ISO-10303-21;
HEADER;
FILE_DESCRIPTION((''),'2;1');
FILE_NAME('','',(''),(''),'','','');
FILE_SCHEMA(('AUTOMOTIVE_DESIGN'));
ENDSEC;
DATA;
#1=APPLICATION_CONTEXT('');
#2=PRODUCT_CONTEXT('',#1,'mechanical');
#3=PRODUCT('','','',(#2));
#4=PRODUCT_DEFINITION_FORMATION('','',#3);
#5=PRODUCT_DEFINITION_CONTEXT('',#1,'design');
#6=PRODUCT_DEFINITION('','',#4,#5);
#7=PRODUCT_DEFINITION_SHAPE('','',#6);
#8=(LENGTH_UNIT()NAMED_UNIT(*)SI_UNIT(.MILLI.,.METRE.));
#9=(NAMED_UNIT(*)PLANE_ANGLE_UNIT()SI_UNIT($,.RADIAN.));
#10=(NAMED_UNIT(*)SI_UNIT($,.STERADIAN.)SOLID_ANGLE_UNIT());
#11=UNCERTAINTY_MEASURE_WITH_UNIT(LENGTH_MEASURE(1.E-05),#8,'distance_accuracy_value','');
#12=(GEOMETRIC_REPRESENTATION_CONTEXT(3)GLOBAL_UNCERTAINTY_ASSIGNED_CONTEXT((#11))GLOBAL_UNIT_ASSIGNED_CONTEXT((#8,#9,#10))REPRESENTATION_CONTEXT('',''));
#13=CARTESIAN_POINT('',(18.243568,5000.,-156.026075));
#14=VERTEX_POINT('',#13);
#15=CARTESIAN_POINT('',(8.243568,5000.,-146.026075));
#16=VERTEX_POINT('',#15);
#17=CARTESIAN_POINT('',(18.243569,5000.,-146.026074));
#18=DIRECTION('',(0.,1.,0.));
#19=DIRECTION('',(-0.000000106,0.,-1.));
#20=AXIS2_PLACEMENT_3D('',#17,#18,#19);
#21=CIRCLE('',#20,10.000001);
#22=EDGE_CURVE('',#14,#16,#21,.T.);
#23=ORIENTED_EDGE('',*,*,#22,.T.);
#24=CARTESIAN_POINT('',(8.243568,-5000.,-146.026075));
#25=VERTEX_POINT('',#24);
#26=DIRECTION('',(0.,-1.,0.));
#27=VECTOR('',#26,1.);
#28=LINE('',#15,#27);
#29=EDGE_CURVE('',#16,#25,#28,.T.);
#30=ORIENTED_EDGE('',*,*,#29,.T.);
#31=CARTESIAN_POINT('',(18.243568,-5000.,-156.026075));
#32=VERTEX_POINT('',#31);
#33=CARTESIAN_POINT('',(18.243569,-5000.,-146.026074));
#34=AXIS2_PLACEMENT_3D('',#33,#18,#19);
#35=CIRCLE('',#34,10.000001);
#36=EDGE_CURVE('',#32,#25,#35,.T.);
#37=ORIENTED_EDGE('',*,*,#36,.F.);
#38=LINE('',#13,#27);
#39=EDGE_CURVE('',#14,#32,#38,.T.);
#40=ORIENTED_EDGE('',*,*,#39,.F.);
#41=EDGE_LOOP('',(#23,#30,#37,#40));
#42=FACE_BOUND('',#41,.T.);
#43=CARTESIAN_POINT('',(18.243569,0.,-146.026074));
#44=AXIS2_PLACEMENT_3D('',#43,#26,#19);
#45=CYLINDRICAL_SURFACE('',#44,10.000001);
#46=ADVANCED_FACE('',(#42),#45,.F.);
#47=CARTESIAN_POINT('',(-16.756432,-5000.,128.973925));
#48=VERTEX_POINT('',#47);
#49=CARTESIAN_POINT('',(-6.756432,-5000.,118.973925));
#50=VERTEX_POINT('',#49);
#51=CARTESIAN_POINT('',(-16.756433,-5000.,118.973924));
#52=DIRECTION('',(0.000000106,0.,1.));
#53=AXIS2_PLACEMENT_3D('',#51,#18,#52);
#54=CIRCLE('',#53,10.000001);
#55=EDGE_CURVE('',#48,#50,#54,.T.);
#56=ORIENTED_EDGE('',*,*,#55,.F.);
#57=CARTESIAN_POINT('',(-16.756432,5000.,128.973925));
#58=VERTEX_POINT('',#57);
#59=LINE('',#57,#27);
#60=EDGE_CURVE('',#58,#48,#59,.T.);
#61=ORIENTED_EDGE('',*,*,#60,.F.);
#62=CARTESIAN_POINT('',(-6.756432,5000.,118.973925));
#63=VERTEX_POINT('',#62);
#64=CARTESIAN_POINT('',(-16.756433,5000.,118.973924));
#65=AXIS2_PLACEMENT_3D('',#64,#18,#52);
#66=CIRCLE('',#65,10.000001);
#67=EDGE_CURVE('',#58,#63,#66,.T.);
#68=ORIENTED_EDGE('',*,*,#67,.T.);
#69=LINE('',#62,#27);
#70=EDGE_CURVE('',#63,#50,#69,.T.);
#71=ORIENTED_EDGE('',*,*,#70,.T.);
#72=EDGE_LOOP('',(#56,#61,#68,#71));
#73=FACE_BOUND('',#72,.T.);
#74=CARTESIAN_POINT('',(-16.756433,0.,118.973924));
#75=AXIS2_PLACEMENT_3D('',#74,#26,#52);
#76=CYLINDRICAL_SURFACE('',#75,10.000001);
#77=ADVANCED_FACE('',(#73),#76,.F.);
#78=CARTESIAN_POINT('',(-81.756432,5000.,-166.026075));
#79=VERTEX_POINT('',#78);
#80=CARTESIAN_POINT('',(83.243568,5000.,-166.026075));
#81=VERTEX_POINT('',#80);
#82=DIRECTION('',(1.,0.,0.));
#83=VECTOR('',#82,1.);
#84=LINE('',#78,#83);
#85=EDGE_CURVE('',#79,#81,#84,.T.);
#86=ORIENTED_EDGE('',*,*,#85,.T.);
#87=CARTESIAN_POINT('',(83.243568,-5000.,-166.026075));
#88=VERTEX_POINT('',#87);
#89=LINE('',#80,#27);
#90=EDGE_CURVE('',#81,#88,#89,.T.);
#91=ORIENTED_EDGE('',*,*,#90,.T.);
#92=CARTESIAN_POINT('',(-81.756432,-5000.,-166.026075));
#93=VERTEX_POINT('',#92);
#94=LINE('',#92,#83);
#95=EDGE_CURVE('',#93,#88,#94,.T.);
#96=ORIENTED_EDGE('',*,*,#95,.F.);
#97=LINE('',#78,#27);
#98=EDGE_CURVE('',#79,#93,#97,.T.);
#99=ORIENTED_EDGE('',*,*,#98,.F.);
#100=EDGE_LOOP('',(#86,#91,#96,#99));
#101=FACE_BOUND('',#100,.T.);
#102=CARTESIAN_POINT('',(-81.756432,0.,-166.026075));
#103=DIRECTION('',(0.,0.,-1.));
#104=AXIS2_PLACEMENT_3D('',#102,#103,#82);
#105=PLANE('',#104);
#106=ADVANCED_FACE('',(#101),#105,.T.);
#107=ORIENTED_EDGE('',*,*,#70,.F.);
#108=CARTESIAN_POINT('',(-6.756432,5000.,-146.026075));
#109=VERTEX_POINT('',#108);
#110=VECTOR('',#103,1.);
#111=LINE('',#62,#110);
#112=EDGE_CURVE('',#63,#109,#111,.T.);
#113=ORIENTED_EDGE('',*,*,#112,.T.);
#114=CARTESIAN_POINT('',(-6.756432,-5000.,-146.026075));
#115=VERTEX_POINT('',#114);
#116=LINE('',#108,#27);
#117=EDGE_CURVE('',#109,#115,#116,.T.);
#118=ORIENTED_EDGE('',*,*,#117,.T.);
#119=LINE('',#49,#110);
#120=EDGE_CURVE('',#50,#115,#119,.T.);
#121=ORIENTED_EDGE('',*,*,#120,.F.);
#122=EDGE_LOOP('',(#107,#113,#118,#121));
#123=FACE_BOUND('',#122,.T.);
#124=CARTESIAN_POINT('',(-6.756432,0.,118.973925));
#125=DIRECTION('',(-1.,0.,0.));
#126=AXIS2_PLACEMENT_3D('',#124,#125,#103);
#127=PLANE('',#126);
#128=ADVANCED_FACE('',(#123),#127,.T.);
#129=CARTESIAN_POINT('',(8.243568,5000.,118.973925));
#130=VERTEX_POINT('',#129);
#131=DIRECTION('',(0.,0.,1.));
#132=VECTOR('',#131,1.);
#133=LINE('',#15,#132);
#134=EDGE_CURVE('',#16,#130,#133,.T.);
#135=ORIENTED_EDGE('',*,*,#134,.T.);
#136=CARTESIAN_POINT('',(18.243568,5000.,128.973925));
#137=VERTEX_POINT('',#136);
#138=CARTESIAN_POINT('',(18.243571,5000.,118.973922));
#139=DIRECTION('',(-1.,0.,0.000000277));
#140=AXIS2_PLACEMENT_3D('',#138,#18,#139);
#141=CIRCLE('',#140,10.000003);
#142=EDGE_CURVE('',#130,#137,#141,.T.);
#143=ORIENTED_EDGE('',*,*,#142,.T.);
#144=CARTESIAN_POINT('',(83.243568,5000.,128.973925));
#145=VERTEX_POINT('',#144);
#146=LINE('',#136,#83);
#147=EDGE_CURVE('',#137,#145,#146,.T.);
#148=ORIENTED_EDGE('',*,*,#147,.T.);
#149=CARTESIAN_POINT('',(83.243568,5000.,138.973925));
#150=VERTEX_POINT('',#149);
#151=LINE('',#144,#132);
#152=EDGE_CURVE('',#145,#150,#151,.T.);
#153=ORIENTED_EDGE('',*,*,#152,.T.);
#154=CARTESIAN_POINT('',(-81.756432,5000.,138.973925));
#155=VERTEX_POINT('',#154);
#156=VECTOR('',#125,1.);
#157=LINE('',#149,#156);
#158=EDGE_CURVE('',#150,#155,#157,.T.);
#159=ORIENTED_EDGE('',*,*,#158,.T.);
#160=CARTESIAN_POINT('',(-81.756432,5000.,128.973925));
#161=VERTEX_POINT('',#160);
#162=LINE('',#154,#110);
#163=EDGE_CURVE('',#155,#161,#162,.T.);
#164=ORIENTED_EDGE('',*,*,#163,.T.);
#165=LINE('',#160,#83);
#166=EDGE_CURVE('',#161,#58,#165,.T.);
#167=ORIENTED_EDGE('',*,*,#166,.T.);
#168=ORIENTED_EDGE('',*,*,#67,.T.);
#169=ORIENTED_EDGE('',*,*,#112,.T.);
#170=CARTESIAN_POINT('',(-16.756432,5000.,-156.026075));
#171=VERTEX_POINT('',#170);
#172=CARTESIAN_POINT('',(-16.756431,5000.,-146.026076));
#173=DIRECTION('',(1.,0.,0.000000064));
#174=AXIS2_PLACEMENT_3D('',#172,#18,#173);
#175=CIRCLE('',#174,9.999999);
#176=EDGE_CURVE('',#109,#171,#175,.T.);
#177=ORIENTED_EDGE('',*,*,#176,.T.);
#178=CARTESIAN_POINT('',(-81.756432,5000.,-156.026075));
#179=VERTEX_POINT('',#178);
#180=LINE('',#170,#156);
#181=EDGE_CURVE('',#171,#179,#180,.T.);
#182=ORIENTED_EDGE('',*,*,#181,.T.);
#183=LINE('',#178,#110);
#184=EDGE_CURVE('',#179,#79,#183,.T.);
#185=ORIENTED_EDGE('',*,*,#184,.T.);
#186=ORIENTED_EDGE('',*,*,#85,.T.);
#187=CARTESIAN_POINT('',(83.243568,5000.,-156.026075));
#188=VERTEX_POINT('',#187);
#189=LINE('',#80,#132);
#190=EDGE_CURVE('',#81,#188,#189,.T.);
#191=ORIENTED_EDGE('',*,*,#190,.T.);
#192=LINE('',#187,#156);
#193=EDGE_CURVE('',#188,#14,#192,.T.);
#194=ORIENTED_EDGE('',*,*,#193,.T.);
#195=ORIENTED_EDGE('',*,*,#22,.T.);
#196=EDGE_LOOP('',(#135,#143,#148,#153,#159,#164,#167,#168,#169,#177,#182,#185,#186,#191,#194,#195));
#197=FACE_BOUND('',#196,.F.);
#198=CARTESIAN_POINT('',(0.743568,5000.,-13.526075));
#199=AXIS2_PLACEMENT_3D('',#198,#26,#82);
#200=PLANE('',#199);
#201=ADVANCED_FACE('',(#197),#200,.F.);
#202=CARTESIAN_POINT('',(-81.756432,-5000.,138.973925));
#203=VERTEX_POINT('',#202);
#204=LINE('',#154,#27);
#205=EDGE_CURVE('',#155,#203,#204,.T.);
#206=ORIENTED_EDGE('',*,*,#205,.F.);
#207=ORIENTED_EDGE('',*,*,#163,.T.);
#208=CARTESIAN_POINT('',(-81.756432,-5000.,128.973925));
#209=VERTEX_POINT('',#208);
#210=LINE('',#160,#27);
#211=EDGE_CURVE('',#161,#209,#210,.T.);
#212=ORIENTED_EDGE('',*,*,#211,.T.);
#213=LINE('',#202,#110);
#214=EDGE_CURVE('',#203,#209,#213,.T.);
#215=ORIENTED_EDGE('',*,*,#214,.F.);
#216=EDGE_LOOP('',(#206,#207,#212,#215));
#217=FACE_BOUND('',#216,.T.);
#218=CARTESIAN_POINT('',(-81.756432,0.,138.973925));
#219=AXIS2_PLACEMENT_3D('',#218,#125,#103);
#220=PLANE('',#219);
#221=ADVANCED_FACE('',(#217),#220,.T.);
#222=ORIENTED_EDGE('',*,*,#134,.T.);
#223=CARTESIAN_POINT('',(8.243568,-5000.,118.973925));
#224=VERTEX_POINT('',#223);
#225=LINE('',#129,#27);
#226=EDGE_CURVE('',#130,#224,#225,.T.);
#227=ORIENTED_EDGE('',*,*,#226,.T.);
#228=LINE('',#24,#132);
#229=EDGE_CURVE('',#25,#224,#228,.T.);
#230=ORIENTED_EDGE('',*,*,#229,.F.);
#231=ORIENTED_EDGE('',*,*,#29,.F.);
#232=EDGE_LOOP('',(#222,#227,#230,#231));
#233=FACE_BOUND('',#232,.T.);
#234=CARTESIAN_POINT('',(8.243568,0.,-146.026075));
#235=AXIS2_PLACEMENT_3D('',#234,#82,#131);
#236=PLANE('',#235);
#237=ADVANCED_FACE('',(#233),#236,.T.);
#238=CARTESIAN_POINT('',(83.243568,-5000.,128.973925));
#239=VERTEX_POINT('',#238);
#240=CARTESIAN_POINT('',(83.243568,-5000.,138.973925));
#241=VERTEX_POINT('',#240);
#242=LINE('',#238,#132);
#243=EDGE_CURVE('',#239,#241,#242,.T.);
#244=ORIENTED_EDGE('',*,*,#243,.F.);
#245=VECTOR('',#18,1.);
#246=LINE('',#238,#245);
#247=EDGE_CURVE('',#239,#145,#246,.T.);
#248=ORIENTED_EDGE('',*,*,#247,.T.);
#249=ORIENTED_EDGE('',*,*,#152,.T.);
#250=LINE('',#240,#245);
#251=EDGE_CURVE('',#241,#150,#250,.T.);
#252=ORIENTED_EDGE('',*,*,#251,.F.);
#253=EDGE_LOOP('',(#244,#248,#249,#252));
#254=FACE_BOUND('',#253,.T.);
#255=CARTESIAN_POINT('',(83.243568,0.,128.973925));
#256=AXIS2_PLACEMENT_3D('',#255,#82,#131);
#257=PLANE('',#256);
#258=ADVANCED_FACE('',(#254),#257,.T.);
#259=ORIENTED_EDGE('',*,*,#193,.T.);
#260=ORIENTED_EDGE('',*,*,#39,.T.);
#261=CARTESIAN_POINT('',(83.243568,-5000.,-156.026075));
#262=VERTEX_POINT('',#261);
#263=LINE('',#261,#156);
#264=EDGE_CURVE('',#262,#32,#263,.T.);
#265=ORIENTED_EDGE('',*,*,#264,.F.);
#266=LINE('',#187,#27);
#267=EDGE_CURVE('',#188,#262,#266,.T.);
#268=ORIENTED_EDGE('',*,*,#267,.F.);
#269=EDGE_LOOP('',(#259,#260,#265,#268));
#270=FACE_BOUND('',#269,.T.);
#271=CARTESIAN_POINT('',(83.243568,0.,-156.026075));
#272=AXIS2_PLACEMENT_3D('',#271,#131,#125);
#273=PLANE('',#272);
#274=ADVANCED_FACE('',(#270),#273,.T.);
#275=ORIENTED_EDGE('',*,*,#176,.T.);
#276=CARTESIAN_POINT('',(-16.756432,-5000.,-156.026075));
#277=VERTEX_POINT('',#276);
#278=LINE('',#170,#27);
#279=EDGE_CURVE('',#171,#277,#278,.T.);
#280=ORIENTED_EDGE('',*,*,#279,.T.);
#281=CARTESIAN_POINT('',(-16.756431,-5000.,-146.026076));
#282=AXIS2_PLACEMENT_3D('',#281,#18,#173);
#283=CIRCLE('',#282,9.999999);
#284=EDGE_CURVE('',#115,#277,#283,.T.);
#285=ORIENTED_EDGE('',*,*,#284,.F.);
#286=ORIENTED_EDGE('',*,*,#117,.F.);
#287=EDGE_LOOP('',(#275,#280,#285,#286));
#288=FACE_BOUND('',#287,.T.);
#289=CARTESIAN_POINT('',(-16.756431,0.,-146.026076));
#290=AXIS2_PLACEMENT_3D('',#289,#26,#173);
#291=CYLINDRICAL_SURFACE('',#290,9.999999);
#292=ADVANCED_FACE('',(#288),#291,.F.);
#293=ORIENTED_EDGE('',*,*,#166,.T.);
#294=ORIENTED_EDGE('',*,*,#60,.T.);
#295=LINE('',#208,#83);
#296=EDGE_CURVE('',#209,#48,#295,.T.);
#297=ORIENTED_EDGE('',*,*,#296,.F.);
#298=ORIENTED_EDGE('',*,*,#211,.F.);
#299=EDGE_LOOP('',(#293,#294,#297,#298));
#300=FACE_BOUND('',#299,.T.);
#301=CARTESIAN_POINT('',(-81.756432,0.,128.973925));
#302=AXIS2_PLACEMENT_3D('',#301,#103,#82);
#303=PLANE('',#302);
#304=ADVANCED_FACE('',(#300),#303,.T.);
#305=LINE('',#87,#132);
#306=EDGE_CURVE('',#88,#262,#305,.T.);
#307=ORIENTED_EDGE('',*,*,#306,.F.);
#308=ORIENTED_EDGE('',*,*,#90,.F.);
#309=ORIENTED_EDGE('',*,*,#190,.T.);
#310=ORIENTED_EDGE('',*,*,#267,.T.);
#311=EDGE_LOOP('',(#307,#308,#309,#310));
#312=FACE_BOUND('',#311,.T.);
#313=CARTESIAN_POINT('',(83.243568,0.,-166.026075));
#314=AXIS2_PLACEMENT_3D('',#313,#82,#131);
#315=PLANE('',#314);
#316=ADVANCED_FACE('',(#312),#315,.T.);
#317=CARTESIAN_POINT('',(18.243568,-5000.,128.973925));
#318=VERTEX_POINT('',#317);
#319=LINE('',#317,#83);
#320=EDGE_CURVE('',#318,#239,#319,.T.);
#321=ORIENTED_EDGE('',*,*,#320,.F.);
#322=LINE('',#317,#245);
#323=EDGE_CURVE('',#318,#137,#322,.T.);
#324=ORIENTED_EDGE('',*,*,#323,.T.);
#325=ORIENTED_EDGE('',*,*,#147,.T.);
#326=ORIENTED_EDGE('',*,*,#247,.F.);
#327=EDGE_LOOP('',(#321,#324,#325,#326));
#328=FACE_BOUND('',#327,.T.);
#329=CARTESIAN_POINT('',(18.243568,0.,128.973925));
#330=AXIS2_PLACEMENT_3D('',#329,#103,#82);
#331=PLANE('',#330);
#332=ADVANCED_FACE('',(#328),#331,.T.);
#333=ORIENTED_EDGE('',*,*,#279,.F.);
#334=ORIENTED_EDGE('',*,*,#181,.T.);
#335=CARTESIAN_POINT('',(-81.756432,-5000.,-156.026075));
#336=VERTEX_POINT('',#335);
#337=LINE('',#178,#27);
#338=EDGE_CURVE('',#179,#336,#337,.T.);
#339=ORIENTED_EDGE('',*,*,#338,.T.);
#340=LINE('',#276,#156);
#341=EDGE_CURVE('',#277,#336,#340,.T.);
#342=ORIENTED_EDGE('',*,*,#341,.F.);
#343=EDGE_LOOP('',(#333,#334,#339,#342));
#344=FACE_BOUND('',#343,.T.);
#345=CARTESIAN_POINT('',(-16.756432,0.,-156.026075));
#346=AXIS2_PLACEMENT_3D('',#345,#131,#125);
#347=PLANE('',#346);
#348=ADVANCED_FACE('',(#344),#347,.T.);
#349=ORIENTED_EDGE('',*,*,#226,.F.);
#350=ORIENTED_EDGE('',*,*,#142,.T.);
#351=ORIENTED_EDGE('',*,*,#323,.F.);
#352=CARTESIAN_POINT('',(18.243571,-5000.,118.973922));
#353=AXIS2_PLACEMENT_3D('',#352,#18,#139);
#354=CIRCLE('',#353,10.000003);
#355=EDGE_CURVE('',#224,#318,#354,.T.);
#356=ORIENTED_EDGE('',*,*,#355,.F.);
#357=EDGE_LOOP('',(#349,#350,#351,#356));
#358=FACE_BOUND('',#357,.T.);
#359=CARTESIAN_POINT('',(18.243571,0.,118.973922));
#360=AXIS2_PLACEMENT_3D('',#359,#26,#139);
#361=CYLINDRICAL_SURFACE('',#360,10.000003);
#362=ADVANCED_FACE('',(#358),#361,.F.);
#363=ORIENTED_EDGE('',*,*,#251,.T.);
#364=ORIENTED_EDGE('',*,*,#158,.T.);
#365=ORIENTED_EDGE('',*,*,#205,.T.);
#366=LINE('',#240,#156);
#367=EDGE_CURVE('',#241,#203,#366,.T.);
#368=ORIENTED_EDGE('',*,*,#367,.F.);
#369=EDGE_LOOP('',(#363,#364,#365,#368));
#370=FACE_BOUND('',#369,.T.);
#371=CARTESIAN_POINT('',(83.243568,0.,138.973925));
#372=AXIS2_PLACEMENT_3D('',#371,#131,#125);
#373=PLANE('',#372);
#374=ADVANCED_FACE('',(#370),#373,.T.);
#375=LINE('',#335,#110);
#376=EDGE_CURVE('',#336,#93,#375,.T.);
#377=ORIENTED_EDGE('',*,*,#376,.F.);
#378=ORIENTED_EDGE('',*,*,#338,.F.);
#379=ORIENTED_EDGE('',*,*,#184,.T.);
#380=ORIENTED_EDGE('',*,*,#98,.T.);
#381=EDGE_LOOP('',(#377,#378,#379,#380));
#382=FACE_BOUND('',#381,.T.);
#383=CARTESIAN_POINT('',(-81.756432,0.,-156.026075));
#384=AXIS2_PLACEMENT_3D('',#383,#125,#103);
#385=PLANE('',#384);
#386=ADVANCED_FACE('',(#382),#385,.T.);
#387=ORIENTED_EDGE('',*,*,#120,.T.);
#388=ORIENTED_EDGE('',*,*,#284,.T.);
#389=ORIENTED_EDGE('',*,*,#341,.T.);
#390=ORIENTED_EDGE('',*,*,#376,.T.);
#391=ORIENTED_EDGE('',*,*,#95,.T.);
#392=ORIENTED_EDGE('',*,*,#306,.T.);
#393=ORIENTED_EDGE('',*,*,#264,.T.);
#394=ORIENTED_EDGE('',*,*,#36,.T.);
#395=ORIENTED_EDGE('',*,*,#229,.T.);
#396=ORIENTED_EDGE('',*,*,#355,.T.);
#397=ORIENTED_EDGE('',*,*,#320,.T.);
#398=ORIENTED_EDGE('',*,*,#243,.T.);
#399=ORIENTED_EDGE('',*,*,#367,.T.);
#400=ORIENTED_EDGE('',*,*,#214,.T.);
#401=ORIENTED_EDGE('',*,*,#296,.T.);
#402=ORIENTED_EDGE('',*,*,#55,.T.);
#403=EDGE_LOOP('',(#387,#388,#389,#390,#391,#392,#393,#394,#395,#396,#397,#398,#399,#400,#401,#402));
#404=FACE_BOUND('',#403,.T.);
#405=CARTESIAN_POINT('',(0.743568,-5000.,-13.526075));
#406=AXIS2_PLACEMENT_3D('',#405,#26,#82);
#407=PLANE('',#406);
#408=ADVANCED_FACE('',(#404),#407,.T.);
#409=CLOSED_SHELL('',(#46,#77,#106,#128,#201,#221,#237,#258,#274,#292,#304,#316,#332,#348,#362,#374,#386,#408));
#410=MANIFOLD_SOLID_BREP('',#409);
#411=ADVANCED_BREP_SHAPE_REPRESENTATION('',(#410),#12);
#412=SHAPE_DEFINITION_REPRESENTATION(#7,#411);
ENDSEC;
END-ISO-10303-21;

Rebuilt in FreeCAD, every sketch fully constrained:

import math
import FreeCAD as App
import Part
import Sketcher
Q = App.Units.Quantity

doc = App.newDocument("Part")
body = doc.addObject("PartDesign::Body", "Body")

# Sketch on XZ plane
sketch1 = body.newObject("Sketcher::SketchObject", "Sketch")
sketch1.AttachmentSupport = (doc.getObject("XZ_Plane"), [""])
sketch1.MapMode = "FlatFace"
sketch1.addGeometry([
    Part.LineSegment(App.Vector(83.243568, 138.973925, 0), App.Vector(-81.756432, 138.973925, 0)),  # 0
    Part.LineSegment(App.Vector(-81.756432, 138.973925, 0), App.Vector(-81.756432, 128.973925, 0)),  # 1
    Part.LineSegment(App.Vector(-81.756432, 128.973925, 0), App.Vector(-16.756432, 128.973925, 0)),  # 2
    Part.ArcOfCircle(Part.Circle(App.Vector(-16.756433, 118.973924, 0), App.Vector(0, 0, 1), 10.000001), math.radians(0.000006), math.radians(89.999994)),  # 3
    Part.LineSegment(App.Vector(-6.756432, 118.973925, 0), App.Vector(-6.756432, -146.026075, 0)),  # 4
    Part.ArcOfCircle(Part.Circle(App.Vector(-16.756431, -146.026076, 0), App.Vector(0, 0, 1), 9.999999), math.radians(-90.000004), math.radians(0.000004)),  # 5
    Part.LineSegment(App.Vector(-16.756432, -156.026075, 0), App.Vector(-81.756432, -156.026075, 0)),  # 6
    Part.LineSegment(App.Vector(-81.756432, -156.026075, 0), App.Vector(-81.756432, -166.026075, 0)),  # 7
    Part.LineSegment(App.Vector(-81.756432, -166.026075, 0), App.Vector(83.243568, -166.026075, 0)),  # 8
    Part.LineSegment(App.Vector(83.243568, -166.026075, 0), App.Vector(83.243568, -156.026075, 0)),  # 9
    Part.LineSegment(App.Vector(83.243568, -156.026075, 0), App.Vector(18.243568, -156.026075, 0)),  # 10
    Part.ArcOfCircle(Part.Circle(App.Vector(18.243569, -146.026074, 0), App.Vector(0, 0, 1), 10.000001), math.radians(-179.999994), math.radians(-90.000006)),  # 11
    Part.LineSegment(App.Vector(8.243568, -146.026075, 0), App.Vector(8.243568, 118.973925, 0)),  # 12
    Part.ArcOfCircle(Part.Circle(App.Vector(18.243571, 118.973922, 0), App.Vector(0, 0, 1), 10.000003), math.radians(90.000016), math.radians(179.999984)),  # 13
    Part.LineSegment(App.Vector(18.243568, 128.973925, 0), App.Vector(83.243568, 128.973925, 0)),  # 14
    Part.LineSegment(App.Vector(83.243568, 128.973925, 0), App.Vector(83.243568, 138.973925, 0)),  # 15
], False)
sketch1.addConstraint([
    Sketcher.Constraint("Coincident", 0, 2, 1, 1),
    Sketcher.Constraint("Coincident", 1, 2, 2, 1),
    Sketcher.Constraint("Tangent", 2, 2, 3, 2),
    Sketcher.Constraint("Tangent", 3, 1, 4, 1),
    Sketcher.Constraint("Tangent", 4, 2, 5, 2),
    Sketcher.Constraint("Tangent", 5, 1, 6, 1),
    Sketcher.Constraint("Coincident", 6, 2, 7, 1),
    Sketcher.Constraint("Coincident", 7, 2, 8, 1),
    Sketcher.Constraint("Coincident", 8, 2, 9, 1),
    Sketcher.Constraint("Coincident", 9, 2, 10, 1),
    Sketcher.Constraint("Tangent", 10, 2, 11, 2),
    Sketcher.Constraint("Tangent", 11, 1, 12, 1),
    Sketcher.Constraint("Tangent", 12, 2, 13, 2),
    Sketcher.Constraint("Tangent", 13, 1, 14, 1),
    Sketcher.Constraint("Coincident", 14, 2, 15, 1),
    Sketcher.Constraint("Coincident", 15, 2, 0, 1),
    Sketcher.Constraint("Horizontal", 0),
    Sketcher.Constraint("Vertical", 1),
    Sketcher.Constraint("Horizontal", 2),
    Sketcher.Constraint("Vertical", 4),
    Sketcher.Constraint("Horizontal", 6),
    Sketcher.Constraint("Vertical", 7),
    Sketcher.Constraint("Horizontal", 8),
    Sketcher.Constraint("Vertical", 9),
    Sketcher.Constraint("Horizontal", 10),
    Sketcher.Constraint("Vertical", 12),
    Sketcher.Constraint("Horizontal", 14),
    Sketcher.Constraint("Vertical", 15),
    Sketcher.Constraint("Equal", 3, 5),
    Sketcher.Constraint("Equal", 5, 11),
    Sketcher.Constraint("Equal", 11, 13),
    Sketcher.Constraint("Horizontal", 5, 3, 11, 3),
    Sketcher.Constraint("Horizontal", 3, 3, 13, 3),
    Sketcher.Constraint("Vertical", 1, 2, 6, 2),
    Sketcher.Constraint("Vertical", 9, 2, 14, 2),
    Sketcher.Constraint("Equal", 6, 10),
    Sketcher.Constraint("Equal", 1, 7),
    Sketcher.Constraint("Radius", 3, Q("10.000001 mm")),
    Sketcher.Constraint("DistanceX", 0, 2, 0, 1, Q("165 mm")),
    Sketcher.Constraint("DistanceX", 2, 1, 2, 2, Q("65 mm")),
    Sketcher.Constraint("DistanceY", 1, 2, 1, 1, Q("10 mm")),
    Sketcher.Constraint("DistanceY", 4, 2, 4, 1, Q("265 mm")),
    Sketcher.Constraint("DistanceX", 5, 3, -1, 1, Q("16.756431 mm")),
    Sketcher.Constraint("DistanceY", -1, 1, 3, 3, Q("118.973924 mm")),
])
pad1 = body.newObject("PartDesign::Pad", "Pad")
pad1.Profile = sketch1
pad1.Type = "TwoLengths"
pad1.Length = 5000
pad1.Length2 = 5000

doc.recompute()
